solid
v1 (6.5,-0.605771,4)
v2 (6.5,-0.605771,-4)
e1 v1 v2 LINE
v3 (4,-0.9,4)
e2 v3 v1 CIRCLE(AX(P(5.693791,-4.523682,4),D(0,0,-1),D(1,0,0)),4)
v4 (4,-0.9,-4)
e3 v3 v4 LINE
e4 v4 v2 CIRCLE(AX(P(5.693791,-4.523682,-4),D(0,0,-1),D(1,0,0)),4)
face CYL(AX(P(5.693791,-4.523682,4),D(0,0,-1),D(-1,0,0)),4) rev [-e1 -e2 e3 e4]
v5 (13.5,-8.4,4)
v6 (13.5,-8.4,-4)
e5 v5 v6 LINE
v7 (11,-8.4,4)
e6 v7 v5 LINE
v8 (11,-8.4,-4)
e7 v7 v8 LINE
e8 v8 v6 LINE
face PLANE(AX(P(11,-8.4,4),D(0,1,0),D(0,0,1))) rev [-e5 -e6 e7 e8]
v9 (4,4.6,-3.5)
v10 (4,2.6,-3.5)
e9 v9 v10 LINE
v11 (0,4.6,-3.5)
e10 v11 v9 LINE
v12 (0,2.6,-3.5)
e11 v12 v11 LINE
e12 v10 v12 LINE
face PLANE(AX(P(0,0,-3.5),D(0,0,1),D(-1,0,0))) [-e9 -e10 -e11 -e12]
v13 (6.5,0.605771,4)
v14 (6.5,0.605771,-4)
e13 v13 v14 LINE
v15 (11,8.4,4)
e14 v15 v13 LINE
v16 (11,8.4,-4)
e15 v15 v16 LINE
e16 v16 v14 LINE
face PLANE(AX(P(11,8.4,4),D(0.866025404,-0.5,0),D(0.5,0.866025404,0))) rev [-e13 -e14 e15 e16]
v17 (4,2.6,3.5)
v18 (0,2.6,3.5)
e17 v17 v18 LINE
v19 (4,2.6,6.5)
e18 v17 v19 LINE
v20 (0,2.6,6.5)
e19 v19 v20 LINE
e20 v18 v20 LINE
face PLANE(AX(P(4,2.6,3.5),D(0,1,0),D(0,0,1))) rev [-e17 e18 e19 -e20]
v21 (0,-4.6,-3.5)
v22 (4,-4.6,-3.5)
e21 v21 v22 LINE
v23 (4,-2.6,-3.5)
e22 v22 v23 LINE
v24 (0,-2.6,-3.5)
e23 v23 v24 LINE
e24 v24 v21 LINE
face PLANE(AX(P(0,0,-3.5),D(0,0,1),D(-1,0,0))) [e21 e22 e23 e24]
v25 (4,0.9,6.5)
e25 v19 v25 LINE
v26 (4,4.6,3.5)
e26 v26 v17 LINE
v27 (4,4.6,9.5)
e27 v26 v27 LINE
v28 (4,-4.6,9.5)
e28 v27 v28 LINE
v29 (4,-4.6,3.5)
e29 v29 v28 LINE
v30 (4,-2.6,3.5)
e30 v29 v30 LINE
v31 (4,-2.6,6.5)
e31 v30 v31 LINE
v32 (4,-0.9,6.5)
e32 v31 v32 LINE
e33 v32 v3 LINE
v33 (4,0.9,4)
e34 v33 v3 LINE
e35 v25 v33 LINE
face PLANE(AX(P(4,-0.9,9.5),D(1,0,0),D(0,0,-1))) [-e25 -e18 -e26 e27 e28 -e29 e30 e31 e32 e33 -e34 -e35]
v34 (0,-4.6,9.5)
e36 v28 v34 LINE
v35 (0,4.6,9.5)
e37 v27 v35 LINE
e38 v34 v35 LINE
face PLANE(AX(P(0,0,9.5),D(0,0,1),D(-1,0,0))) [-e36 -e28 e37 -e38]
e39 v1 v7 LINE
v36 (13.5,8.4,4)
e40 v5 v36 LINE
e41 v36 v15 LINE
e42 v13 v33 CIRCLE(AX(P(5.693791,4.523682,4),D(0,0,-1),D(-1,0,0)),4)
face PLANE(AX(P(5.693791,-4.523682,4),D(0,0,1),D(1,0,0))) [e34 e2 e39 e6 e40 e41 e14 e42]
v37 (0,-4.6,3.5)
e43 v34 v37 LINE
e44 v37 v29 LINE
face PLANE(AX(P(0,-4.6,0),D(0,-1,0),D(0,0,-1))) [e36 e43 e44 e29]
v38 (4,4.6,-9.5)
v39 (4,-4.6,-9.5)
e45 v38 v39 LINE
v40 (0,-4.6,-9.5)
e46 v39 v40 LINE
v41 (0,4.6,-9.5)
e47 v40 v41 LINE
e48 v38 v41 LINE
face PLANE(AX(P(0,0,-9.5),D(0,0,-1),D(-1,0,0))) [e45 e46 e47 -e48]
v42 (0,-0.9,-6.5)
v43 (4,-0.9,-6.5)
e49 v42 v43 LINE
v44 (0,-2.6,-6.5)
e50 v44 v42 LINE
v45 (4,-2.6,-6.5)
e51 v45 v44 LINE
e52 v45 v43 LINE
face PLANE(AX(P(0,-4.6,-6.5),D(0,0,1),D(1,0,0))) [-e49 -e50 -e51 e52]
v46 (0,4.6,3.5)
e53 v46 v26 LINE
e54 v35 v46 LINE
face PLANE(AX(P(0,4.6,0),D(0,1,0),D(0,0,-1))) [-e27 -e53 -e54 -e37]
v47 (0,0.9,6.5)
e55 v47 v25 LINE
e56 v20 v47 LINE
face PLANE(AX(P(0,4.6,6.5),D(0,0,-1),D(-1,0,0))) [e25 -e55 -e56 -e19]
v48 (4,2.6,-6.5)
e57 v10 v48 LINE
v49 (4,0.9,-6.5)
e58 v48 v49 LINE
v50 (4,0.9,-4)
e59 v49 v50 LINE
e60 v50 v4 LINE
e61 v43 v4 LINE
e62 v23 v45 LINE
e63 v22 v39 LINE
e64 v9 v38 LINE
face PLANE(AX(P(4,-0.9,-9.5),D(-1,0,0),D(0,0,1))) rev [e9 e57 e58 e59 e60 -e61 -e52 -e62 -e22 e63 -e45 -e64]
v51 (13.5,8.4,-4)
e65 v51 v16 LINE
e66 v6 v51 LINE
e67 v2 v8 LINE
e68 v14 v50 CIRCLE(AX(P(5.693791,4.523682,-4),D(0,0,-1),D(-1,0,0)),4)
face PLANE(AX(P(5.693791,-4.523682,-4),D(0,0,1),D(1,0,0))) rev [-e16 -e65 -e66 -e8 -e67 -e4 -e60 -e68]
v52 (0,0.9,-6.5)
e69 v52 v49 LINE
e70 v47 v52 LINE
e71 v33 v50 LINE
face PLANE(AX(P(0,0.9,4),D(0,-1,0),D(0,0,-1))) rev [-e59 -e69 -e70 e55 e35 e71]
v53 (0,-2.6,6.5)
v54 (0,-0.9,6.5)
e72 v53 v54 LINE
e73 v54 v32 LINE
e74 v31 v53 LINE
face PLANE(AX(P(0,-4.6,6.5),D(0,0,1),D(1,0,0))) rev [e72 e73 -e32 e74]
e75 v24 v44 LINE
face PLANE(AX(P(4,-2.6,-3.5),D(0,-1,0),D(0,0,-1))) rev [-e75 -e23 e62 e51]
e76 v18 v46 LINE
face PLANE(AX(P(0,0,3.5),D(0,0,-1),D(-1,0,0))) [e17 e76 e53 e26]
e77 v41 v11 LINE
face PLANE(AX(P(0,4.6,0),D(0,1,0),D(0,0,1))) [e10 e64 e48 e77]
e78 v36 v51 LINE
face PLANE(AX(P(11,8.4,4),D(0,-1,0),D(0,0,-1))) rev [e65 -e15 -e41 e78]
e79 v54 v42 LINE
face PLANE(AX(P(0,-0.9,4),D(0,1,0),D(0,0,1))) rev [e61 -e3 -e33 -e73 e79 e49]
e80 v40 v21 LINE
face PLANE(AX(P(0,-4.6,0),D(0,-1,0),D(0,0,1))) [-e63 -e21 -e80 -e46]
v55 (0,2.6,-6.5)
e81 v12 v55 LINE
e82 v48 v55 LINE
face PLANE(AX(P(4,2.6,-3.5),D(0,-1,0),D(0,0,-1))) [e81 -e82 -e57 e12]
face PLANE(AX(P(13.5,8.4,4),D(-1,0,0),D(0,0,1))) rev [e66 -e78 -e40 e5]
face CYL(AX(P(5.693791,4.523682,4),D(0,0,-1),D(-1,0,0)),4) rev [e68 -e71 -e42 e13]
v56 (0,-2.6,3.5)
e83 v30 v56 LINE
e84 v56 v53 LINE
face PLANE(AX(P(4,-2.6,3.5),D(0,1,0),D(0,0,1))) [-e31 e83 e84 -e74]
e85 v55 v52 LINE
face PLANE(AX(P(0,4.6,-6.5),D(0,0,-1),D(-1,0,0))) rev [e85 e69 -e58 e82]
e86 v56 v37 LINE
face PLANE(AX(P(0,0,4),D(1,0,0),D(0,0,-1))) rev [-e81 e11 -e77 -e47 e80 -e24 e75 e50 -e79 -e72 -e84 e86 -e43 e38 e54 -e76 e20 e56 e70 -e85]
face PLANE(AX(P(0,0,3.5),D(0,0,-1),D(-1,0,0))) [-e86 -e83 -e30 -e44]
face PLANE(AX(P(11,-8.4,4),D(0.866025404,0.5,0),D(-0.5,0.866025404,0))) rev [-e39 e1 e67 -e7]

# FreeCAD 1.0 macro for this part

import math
import FreeCAD as App
import Part
import Sketcher
from FreeCAD import Vector
Q = App.Units.Quantity

doc = App.newDocument("Part")
body = doc.addObject("PartDesign::Body", "Body")

sketch1 = body.newObject("Sketcher::SketchObject", "Sketch")
sketch1.AttachmentSupport = (doc.getObject("XY_Plane"), [""])
sketch1.MapMode = "FlatFace"
sketch1.addGeometry([
    Part.LineSegment(Vector(4, 0.9, 0), Vector(0, 0.9, 0)),
    Part.LineSegment(Vector(0, 0.9, 0), Vector(0, -0.9, 0)),
    Part.LineSegment(Vector(0, -0.9, 0), Vector(4, -0.9, 0)),
    Part.ArcOfCircle(Part.Circle(Vector(5.7, -4.5, 0), Vector(0, 0, 1), 4), math.radians(78), math.radians(115)),
    Part.LineSegment(Vector(6.5, -0.6, 0), Vector(11, -8.4, 0)),
    Part.LineSegment(Vector(11, -8.4, 0), Vector(13.5, -8.4, 0)),
    Part.LineSegment(Vector(13.5, -8.4, 0), Vector(13.5, 8.4, 0)),
    Part.LineSegment(Vector(13.5, 8.4, 0), Vector(11, 8.4, 0)),
    Part.LineSegment(Vector(11, 8.4, 0), Vector(6.5, 0.6, 0)),
    Part.ArcOfCircle(Part.Circle(Vector(5.7, 4.5, 0), Vector(0, 0, 1), 4), math.radians(-115), math.radians(-78)),
], False)
sketch1.addConstraint([
    Sketcher.Constraint("Coincident", 0, 2, 1, 1),
    Sketcher.Constraint("Coincident", 1, 2, 2, 1),
    Sketcher.Constraint("Coincident", 2, 2, 3, 2),
    Sketcher.Constraint("Coincident", 3, 1, 4, 1),
    Sketcher.Constraint("Coincident", 4, 2, 5, 1),
    Sketcher.Constraint("Coincident", 5, 2, 6, 1),
    Sketcher.Constraint("Coincident", 6, 2, 7, 1),
    Sketcher.Constraint("Coincident", 7, 2, 8, 1),
    Sketcher.Constraint("Coincident", 8, 2, 9, 2),
    Sketcher.Constraint("Coincident", 9, 1, 0, 1),
    Sketcher.Constraint("Horizontal", 0),
    Sketcher.Constraint("Vertical", 1),
    Sketcher.Constraint("Horizontal", 2),
    Sketcher.Constraint("Horizontal", 5),
    Sketcher.Constraint("Vertical", 6),
    Sketcher.Constraint("Horizontal", 7),
    Sketcher.Constraint("Equal", 3, 9),
    Sketcher.Constraint("Symmetric", 0, 2, 1, 2, -1, 1),
    Sketcher.Constraint("Symmetric", 3, 3, 9, 3, -1),
    Sketcher.Constraint("Symmetric", 4, 2, 7, 2, -1),
    Sketcher.Constraint("Vertical", 3, 1, 8, 2),
    Sketcher.Constraint("Radius", 3, Q("4 mm")),
    Sketcher.Constraint("DistanceX", 0, 2, 0, 1, Q("4 mm")),
    Sketcher.Constraint("Angle", 4, Q("-60 deg")),
    Sketcher.Constraint("Distance", 4, Q("9 mm")),
    Sketcher.Constraint("DistanceX", 5, 1, 5, 2, Q("2.5 mm")),
    Sketcher.Constraint("DistanceY", 1, 2, 1, 1, Q("1.8 mm")),
    Sketcher.Constraint("DistanceY", 6, 1, 6, 2, Q("16.8 mm")),
    Sketcher.Constraint("DistanceX", -1, 1, 4, 2, Q("11 mm")),
])
pad1 = body.newObject("PartDesign::Pad", "Pad")
pad1.Profile = sketch1
pad1.Length = 8
pad1.Midplane = True

sketch2 = body.newObject("Sketcher::SketchObject", "Sketch001")
sketch2.AttachmentSupport = (doc.getObject("XY_Plane"), [""])
sketch2.MapMode = "FlatFace"
sketch2.AttachmentOffset = App.Placement(Vector(0, 0, -4), App.Rotation())
sketch2.addGeometry([
    Part.LineSegment(Vector(4, 0.9, 0), Vector(4, -0.9, 0)),
    Part.LineSegment(Vector(4, -0.9, 0), Vector(0, -0.9, 0)),
    Part.LineSegment(Vector(0, -0.9, 0), Vector(0, 0.9, 0)),
    Part.LineSegment(Vector(0, 0.9, 0), Vector(4, 0.9, 0)),
], False)
sketch2.addConstraint([
    Sketcher.Constraint("Coincident", 0, 2, 1, 1),
    Sketcher.Constraint("Coincident", 1, 2, 2, 1),
    Sketcher.Constraint("Coincident", 2, 2, 3, 1),
    Sketcher.Constraint("Coincident", 3, 2, 0, 1),
    Sketcher.Constraint("Vertical", 0),
    Sketcher.Constraint("Horizontal", 1),
    Sketcher.Constraint("Vertical", 2),
    Sketcher.Constraint("Horizontal", 3),
    Sketcher.Constraint("Symmetric", 1, 2, 2, 2, -1, 1),
    Sketcher.Constraint("DistanceX", 1, 2, 1, 1, Q("4 mm")),
    Sketcher.Constraint("DistanceY", 0, 2, 0, 1, Q("1.8 mm")),
])
pad2 = body.newObject("PartDesign::Pad", "Pad001")
pad2.Profile = sketch2
pad2.Length = 5.5
pad2.Reversed = True
doc.recompute()

mirrored = body.newObject("PartDesign::Mirrored", "Mirrored")
mirrored.Originals = [pad2]
mirrored.MirrorPlane = (doc.getObject("XY_Plane"), [""])
body.Tip = mirrored

sketch3 = body.newObject("Sketcher::SketchObject", "Sketch002")
sketch3.AttachmentSupport = (doc.getObject("XZ_Plane"), [""])
sketch3.MapMode = "FlatFace"
sketch3.AttachmentOffset = App.Placement(Vector(0, 0, -0.9), App.Rotation())
sketch3.addGeometry([
    Part.LineSegment(Vector(0, -9.5, 0), Vector(0, -6.5, 0)),
    Part.LineSegment(Vector(0, -6.5, 0), Vector(4, -6.5, 0)),
    Part.LineSegment(Vector(4, -6.5, 0), Vector(4, -9.5, 0)),
    Part.LineSegment(Vector(4, -9.5, 0), Vector(0, -9.5, 0)),
], False)
sketch3.addConstraint([
    Sketcher.Constraint("Coincident", 0, 2, 1, 1),
    Sketcher.Constraint("Coincident", 1, 2, 2, 1),
    Sketcher.Constraint("Coincident", 2, 2, 3, 1),
    Sketcher.Constraint("Coincident", 3, 2, 0, 1),
    Sketcher.Constraint("Vertical", 0),
    Sketcher.Constraint("Horizontal", 1),
    Sketcher.Constraint("Vertical", 2),
    Sketcher.Constraint("Horizontal", 3),
    Sketcher.Constraint("PointOnObject", 0, 2, -2),
    Sketcher.Constraint("DistanceX", 1, 1, 1, 2, Q("4 mm")),
    Sketcher.Constraint("DistanceY", 0, 1, 0, 2, Q("3 mm")),
    Sketcher.Constraint("DistanceY", 0, 2, -1, 1, Q("6.5 mm")),
])
pad3 = body.newObject("PartDesign::Pad", "Pad002")
pad3.Profile = sketch3
pad3.Length = 3.7
pad3.Reversed = True
doc.recompute()

mirrored2 = body.newObject("PartDesign::Mirrored", "Mirrored001")
mirrored2.Originals = [pad3]
mirrored2.MirrorPlane = (doc.getObject("XY_Plane"), [""])
body.Tip = mirrored2
doc.recompute()

mirrored3 = body.newObject("PartDesign::Mirrored", "Mirrored002")
mirrored3.Originals = [pad3]
mirrored3.MirrorPlane = (doc.getObject("XZ_Plane"), [""])
body.Tip = mirrored3

sketch4 = body.newObject("Sketcher::SketchObject", "Sketch003")
sketch4.AttachmentSupport = (doc.getObject("XZ_Plane"), [""])
sketch4.MapMode = "FlatFace"
sketch4.AttachmentOffset = App.Placement(Vector(0, 0, 0.9), App.Rotation())
sketch4.addGeometry([
    Part.LineSegment(Vector(0, 9.5, 0), Vector(0, 6.5, 0)),
    Part.LineSegment(Vector(0, 6.5, 0), Vector(4, 6.5, 0)),
    Part.LineSegment(Vector(4, 6.5, 0), Vector(4, 9.5, 0)),
    Part.LineSegment(Vector(4, 9.5, 0), Vector(0, 9.5, 0)),
], False)
sketch4.addConstraint([
    Sketcher.Constraint("Coincident", 0, 2, 1, 1),
    Sketcher.Constraint("Coincident", 1, 2, 2, 1),
    Sketcher.Constraint("Coincident", 2, 2, 3, 1),
    Sketcher.Constraint("Coincident", 3, 2, 0, 1),
    Sketcher.Constraint("Vertical", 0),
    Sketcher.Constraint("Horizontal", 1),
    Sketcher.Constraint("Vertical", 2),
    Sketcher.Constraint("Horizontal", 3),
    Sketcher.Constraint("PointOnObject", 0, 2, -2),
    Sketcher.Constraint("DistanceX", 1, 1, 1, 2, Q("4 mm")),
    Sketcher.Constraint("DistanceY", 0, 2, 0, 1, Q("3 mm")),
    Sketcher.Constraint("DistanceY", -1, 1, 0, 2, Q("6.5 mm")),
])
pad4 = body.newObject("PartDesign::Pad", "Pad003")
pad4.Profile = sketch4
pad4.Length = 3.7

sketch5 = body.newObject("Sketcher::SketchObject", "Sketch004")
sketch5.AttachmentSupport = (doc.getObject("XY_Plane"), [""])
sketch5.MapMode = "FlatFace"
sketch5.AttachmentOffset = App.Placement(Vector(0, 0, 6.5), App.Rotation())
sketch5.addGeometry([
    Part.LineSegment(Vector(4, 4.6, 0), Vector(4, 2.6, 0)),
    Part.LineSegment(Vector(4, 2.6, 0), Vector(0, 2.6, 0)),
    Part.LineSegment(Vector(0, 2.6, 0), Vector(0, 4.6, 0)),
    Part.LineSegment(Vector(0, 4.6, 0), Vector(4, 4.6, 0)),
], False)
sketch5.addConstraint([
    Sketcher.Constraint("Coincident", 0, 2, 1, 1),
    Sketcher.Constraint("Coincident", 1, 2, 2, 1),
    Sketcher.Constraint("Coincident", 2, 2, 3, 1),
    Sketcher.Constraint("Coincident", 3, 2, 0, 1),
    Sketcher.Constraint("Vertical", 0),
    Sketcher.Constraint("Horizontal", 1),
    Sketcher.Constraint("Vertical", 2),
    Sketcher.Constraint("Horizontal", 3),
    Sketcher.Constraint("PointOnObject", 1, 2, -2),
    Sketcher.Constraint("DistanceX", 1, 2, 1, 1, Q("4 mm")),
    Sketcher.Constraint("DistanceY", 0, 2, 0, 1, Q("2 mm")),
    Sketcher.Constraint("DistanceY", -1, 1, 0, 2, Q("2.6 mm")),
])
pad5 = body.newObject("PartDesign::Pad", "Pad004")
pad5.Profile = sketch5
pad5.Length = 3
pad5.Reversed = True
doc.recompute()

mirrored4 = body.newObject("PartDesign::Mirrored", "Mirrored003")
mirrored4.Originals = [pad5]
mirrored4.MirrorPlane = (doc.getObject("XY_Plane"), [""])
body.Tip = mirrored4
doc.recompute()

mirrored5 = body.newObject("PartDesign::Mirrored", "Mirrored004")
mirrored5.Originals = [pad5]
mirrored5.MirrorPlane = (doc.getObject("XZ_Plane"), [""])
body.Tip = mirrored5

sketch6 = body.newObject("Sketcher::SketchObject", "Sketch005")
sketch6.AttachmentSupport = (doc.getObject("XY_Plane"), [""])
sketch6.MapMode = "FlatFace"
sketch6.AttachmentOffset = App.Placement(Vector(0, 0, -6.5), App.Rotation())
sketch6.addGeometry([
    Part.LineSegment(Vector(4, -4.6, 0), Vector(4, -2.6, 0)),
    Part.LineSegment(Vector(4, -2.6, 0), Vector(0, -2.6, 0)),
    Part.LineSegment(Vector(0, -2.6, 0), Vector(0, -4.6, 0)),
    Part.LineSegment(Vector(0, -4.6, 0), Vector(4, -4.6, 0)),
], False)
sketch6.addConstraint([
    Sketcher.Constraint("Coincident", 0, 2, 1, 1),
    Sketcher.Constraint("Coincident", 1, 2, 2, 1),
    Sketcher.Constraint("Coincident", 2, 2, 3, 1),
    Sketcher.Constraint("Coincident", 3, 2, 0, 1),
    Sketcher.Constraint("Vertical", 0),
    Sketcher.Constraint("Horizontal", 1),
    Sketcher.Constraint("Vertical", 2),
    Sketcher.Constraint("Horizontal", 3),
    Sketcher.Constraint("PointOnObject", 1, 2, -2),
    Sketcher.Constraint("DistanceX", 1, 2, 1, 1, Q("4 mm")),
    Sketcher.Constraint("DistanceY", 0, 1, 0, 2, Q("2 mm")),
    Sketcher.Constraint("DistanceY", 0, 2, -1, 1, Q("2.6 mm")),
])
pad6 = body.newObject("PartDesign::Pad", "Pad005")
pad6.Profile = sketch6
pad6.Length = 3

doc.recompute()
